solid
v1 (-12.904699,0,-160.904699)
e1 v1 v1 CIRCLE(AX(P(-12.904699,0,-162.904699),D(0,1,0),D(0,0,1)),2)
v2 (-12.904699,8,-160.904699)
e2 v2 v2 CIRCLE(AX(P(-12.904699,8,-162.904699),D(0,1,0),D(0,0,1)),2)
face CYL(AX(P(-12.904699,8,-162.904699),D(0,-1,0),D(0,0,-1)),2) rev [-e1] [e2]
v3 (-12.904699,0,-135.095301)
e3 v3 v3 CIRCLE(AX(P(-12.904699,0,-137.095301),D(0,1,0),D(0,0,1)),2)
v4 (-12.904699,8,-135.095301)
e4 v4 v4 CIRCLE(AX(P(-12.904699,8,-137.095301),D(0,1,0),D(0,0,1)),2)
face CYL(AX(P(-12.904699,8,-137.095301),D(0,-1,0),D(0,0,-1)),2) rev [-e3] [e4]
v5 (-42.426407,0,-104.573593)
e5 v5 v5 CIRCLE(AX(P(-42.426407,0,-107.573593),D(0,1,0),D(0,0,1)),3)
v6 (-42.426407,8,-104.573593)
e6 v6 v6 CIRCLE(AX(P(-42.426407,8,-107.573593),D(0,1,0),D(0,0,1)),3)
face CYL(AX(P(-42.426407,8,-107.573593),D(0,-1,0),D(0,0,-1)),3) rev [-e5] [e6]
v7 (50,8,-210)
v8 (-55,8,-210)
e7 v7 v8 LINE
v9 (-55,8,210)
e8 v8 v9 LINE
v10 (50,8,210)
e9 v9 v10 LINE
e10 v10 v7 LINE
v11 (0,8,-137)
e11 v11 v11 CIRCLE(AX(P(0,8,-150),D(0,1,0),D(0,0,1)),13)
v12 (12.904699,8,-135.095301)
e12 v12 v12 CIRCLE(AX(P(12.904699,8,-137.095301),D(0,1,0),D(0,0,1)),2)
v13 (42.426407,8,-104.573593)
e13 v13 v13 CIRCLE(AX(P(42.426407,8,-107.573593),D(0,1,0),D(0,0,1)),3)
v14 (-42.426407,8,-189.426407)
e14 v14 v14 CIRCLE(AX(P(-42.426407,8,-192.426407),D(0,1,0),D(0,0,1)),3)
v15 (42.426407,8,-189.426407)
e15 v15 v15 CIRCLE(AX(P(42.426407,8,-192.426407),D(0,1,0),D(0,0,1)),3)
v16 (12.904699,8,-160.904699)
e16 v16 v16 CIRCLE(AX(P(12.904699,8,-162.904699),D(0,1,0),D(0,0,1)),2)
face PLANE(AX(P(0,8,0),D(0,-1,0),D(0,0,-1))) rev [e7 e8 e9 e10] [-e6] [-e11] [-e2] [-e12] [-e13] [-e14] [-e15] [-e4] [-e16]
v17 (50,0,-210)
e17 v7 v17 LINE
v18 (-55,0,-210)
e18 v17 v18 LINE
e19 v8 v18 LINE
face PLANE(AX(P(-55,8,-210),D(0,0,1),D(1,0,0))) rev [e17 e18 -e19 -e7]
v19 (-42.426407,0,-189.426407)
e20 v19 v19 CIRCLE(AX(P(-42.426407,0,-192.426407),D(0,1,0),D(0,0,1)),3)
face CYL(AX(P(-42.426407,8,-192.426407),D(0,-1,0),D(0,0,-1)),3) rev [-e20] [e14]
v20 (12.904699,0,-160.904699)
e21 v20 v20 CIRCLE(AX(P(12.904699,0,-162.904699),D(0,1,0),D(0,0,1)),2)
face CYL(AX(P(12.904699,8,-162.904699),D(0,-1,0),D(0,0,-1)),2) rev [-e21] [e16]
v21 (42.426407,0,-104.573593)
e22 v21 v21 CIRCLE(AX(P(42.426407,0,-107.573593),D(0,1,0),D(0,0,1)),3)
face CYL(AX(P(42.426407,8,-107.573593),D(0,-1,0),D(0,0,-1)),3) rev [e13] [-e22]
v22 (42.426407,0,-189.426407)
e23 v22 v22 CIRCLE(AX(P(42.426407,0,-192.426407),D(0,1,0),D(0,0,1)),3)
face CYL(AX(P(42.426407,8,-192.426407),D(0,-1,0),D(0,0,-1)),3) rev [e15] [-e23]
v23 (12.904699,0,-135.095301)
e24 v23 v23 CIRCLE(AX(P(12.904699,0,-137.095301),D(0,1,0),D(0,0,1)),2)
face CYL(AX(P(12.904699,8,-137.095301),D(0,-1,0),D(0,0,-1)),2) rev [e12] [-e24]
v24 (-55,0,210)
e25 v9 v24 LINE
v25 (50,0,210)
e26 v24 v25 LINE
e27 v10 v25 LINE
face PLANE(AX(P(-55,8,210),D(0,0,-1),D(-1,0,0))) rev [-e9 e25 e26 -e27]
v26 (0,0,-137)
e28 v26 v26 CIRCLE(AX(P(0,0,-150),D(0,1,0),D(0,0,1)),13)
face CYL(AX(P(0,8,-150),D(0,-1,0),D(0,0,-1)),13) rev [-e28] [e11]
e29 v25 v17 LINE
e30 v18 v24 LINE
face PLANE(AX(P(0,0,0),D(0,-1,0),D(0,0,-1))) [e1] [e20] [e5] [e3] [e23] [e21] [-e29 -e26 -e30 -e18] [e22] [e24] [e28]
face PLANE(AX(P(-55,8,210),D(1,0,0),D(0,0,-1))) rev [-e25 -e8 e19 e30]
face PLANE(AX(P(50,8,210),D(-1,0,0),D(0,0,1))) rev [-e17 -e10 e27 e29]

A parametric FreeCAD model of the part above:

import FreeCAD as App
import Part
import Sketcher

doc = App.newDocument("Part")
body = doc.addObject("PartDesign::Body", "Body")

sketch1 = doc.addObject("Sketcher::SketchObject", "Sketch")
body.addObject(sketch1)
sketch1.AttachmentSupport = (doc.XZ_Plane, [""])
sketch1.MapMode = "FlatFace"
sketch1.addGeometry([
    Part.LineSegment(App.Vector(-55, -210, 0), App.Vector(-55, 210, 0)),
    Part.LineSegment(App.Vector(-55, 210, 0), App.Vector(50, 210, 0)),
    Part.LineSegment(App.Vector(50, 210, 0), App.Vector(50, -210, 0)),
    Part.LineSegment(App.Vector(50, -210, 0), App.Vector(-55, -210, 0)),
    Part.Circle(App.Vector(-42.4, -107.6, 0), App.Vector(0, 0, 1), 3),
    Part.Circle(App.Vector(-12.9, -137.1, 0), App.Vector(0, 0, 1), 2),
    Part.Circle(App.Vector(42.4, -107.6, 0), App.Vector(0, 0, 1), 3),
    Part.Circle(App.Vector(12.9, -137.1, 0), App.Vector(0, 0, 1), 2),
    Part.Circle(App.Vector(0, -150, 0), App.Vector(0, 0, 1), 13),
    Part.Circle(App.Vector(-12.9, -162.9, 0), App.Vector(0, 0, 1), 2),
    Part.Circle(App.Vector(-42.4, -192.4, 0), App.Vector(0, 0, 1), 3),
    Part.Circle(App.Vector(12.9, -162.9, 0), App.Vector(0, 0, 1), 2),
    Part.Circle(App.Vector(42.4, -192.4, 0), App.Vector(0, 0, 1), 3),
], False)
sketch1.addConstraint([
    Sketcher.Constraint("Coincident", 0, 2, 1, 1),
    Sketcher.Constraint("Coincident", 1, 2, 2, 1),
    Sketcher.Constraint("Coincident", 2, 2, 3, 1),
    Sketcher.Constraint("Coincident", 3, 2, 0, 1),
    Sketcher.Constraint("Vertical", 0),
    Sketcher.Constraint("Horizontal", 1),
    Sketcher.Constraint("Vertical", 2),
    Sketcher.Constraint("Horizontal", 3),
    Sketcher.Constraint("Equal", 4, 6),
    Sketcher.Constraint("Equal", 5, 7),
    Sketcher.Constraint("Equal", 7, 9),
    Sketcher.Constraint("Equal", 6, 10),
    Sketcher.Constraint("Equal", 9, 11),
    Sketcher.Constraint("Equal", 10, 12),
    Sketcher.Constraint("Symmetric", 4, 3, 6, 3, -2),
    Sketcher.Constraint("Symmetric", 5, 3, 7, 3, -2),
    Sketcher.Constraint("Symmetric", 9, 3, 11, 3, -2),
    Sketcher.Constraint("Symmetric", 10, 3, 12, 3, -2),
    Sketcher.Constraint("PointOnObject", 8, 3, -2),
    Sketcher.Constraint("Vertical", 5, 3, 9, 3),
    Sketcher.Constraint("Vertical", 4, 3, 10, 3),
    Sketcher.Constraint("Diameter", 4, 6.0),
    Sketcher.Constraint("Diameter", 5, 4.0),
    Sketcher.Constraint("Diameter", 8, 26.0),
    Sketcher.Constraint("DistanceX", 1, 1, 1, 2, 105.0),
    Sketcher.Constraint("DistanceY", 0, 1, 0, 2, 420.0),
    Sketcher.Constraint("DistanceY", 8, 3, -1, 1, 150.0),
    Sketcher.Constraint("DistanceX", 0, 2, -1, 1, 55.0),
    Sketcher.Constraint("DistanceY", -1, 1, 0, 2, 210.0),
    Sketcher.Constraint("DistanceX", 5, 3, -1, 1, 12.904699),
    Sketcher.Constraint("DistanceY", 5, 3, -1, 1, 137.095301),
    Sketcher.Constraint("DistanceY", 9, 3, -1, 1, 162.904699),
    Sketcher.Constraint("DistanceX", 4, 3, 5, 3, 29.521708),
    Sketcher.Constraint("DistanceY", 5, 3, 4, 3, 29.521708),
    Sketcher.Constraint("DistanceY", 10, 3, 9, 3, 29.521708),
])
pad1 = doc.addObject("PartDesign::Pad", "Pad")
body.addObject(pad1)
pad1.Profile = sketch1
pad1.Length = 8
pad1.Reversed = True

doc.recompute()
